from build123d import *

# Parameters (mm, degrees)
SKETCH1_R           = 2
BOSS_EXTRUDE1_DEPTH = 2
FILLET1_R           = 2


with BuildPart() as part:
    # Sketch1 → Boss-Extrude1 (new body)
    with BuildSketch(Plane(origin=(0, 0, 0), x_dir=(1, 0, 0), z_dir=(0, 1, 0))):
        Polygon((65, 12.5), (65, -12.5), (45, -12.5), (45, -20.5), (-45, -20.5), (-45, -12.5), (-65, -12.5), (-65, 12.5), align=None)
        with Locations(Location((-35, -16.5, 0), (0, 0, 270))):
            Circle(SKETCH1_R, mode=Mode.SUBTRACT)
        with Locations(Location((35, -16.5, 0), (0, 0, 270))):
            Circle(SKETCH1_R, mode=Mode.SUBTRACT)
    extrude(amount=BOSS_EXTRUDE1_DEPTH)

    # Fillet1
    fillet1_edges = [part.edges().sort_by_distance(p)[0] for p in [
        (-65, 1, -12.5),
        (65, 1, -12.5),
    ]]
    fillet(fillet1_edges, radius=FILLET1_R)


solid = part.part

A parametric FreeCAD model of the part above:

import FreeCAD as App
import Part
import Sketcher

V = App.Vector


def edges_at(feature, points):
    """Names of the edges that pass closest to the given points."""
    edges = feature.Shape.Edges
    near = lambda p: min(range(len(edges)), key=lambda i: edges[i].distToShape(Part.Vertex(*p))[0])
    return sorted({f"Edge{near(p) + 1}" for p in points})

doc = App.newDocument("Part")
body = doc.addObject("PartDesign::Body", "Body")

# Sketch on XZ plane
sketch1 = doc.addObject("Sketcher::SketchObject", "Sketch")
body.addObject(sketch1)
sketch1.AttachmentSupport = (doc.XZ_Plane, [""])
sketch1.MapMode = "FlatFace"
sketch1.addGeometry([
    Part.LineSegment(V(65, 12.5, 0), V(65, -12.5, 0)),  # 0
    Part.LineSegment(V(65, -12.5, 0), V(-65, -12.5, 0)),  # 1
    Part.LineSegment(V(-65, -12.5, 0), V(-65, 12.5, 0)),  # 2
    Part.LineSegment(V(-65, 12.5, 0), V(-45, 12.5, 0)),  # 3
    Part.LineSegment(V(-45, 12.5, 0), V(-45, 20.5, 0)),  # 4
    Part.LineSegment(V(-45, 20.5, 0), V(45, 20.5, 0)),  # 5
    Part.LineSegment(V(45, 20.5, 0), V(45, 12.5, 0)),  # 6
    Part.LineSegment(V(45, 12.5, 0), V(65, 12.5, 0)),  # 7
    Part.Circle(V(35, 16.5, 0), V(0, 0, 1), 2),  # 8
    Part.Circle(V(-35, 16.5, 0), V(0, 0, 1), 2),  # 9
], False)
sketch1.addConstraint([
    Sketcher.Constraint("Coincident", 0, 2, 1, 1),
    Sketcher.Constraint("Coincident", 1, 2, 2, 1),
    Sketcher.Constraint("Coincident", 2, 2, 3, 1),
    Sketcher.Constraint("Coincident", 3, 2, 4, 1),
    Sketcher.Constraint("Coincident", 4, 2, 5, 1),
    Sketcher.Constraint("Coincident", 5, 2, 6, 1),
    Sketcher.Constraint("Coincident", 6, 2, 7, 1),
    Sketcher.Constraint("Coincident", 7, 2, 0, 1),
    Sketcher.Constraint("Vertical", 0),
    Sketcher.Constraint("Horizontal", 1),
    Sketcher.Constraint("Vertical", 2),
    Sketcher.Constraint("Horizontal", 3),
    Sketcher.Constraint("Vertical", 4),
    Sketcher.Constraint("Horizontal", 5),
    Sketcher.Constraint("Vertical", 6),
    Sketcher.Constraint("Horizontal", 7),
    Sketcher.Constraint("Equal", 8, 9),
    Sketcher.Constraint("Symmetric", 0, 2, 2, 2, -1, 1),
    Sketcher.Constraint("Symmetric", 8, 3, 9, 3, -2),
    Sketcher.Constraint("Symmetric", 3, 2, 6, 2, -2),
    Sketcher.Constraint("Diameter", 8, 4.0),
    Sketcher.Constraint("DistanceX", 1, 2, 1, 1, 130.0),
    Sketcher.Constraint("DistanceX", 3, 1, 3, 2, 20.0),
    Sketcher.Constraint("DistanceY", 0, 2, 0, 1, 25.0),
    Sketcher.Constraint("DistanceY", 4, 1, 4, 2, 8.0),
    Sketcher.Constraint("DistanceX", -1, 1, 8, 3, 35.0),
    Sketcher.Constraint("DistanceY", 0, 2, 8, 3, 29.0),
])
pad1 = doc.addObject("PartDesign::Pad", "Pad")
body.addObject(pad1)
pad1.Profile = sketch1
pad1.Length = 2
pad1.Reversed = True
doc.recompute()

fillet = doc.addObject("PartDesign::Fillet", "Fillet")
body.addObject(fillet)
fillet.Base = (pad1, edges_at(pad1, [(-65, 1, -12.5), (65, 1, -12.5)]))
fillet.Radius = 2

doc.recompute()
